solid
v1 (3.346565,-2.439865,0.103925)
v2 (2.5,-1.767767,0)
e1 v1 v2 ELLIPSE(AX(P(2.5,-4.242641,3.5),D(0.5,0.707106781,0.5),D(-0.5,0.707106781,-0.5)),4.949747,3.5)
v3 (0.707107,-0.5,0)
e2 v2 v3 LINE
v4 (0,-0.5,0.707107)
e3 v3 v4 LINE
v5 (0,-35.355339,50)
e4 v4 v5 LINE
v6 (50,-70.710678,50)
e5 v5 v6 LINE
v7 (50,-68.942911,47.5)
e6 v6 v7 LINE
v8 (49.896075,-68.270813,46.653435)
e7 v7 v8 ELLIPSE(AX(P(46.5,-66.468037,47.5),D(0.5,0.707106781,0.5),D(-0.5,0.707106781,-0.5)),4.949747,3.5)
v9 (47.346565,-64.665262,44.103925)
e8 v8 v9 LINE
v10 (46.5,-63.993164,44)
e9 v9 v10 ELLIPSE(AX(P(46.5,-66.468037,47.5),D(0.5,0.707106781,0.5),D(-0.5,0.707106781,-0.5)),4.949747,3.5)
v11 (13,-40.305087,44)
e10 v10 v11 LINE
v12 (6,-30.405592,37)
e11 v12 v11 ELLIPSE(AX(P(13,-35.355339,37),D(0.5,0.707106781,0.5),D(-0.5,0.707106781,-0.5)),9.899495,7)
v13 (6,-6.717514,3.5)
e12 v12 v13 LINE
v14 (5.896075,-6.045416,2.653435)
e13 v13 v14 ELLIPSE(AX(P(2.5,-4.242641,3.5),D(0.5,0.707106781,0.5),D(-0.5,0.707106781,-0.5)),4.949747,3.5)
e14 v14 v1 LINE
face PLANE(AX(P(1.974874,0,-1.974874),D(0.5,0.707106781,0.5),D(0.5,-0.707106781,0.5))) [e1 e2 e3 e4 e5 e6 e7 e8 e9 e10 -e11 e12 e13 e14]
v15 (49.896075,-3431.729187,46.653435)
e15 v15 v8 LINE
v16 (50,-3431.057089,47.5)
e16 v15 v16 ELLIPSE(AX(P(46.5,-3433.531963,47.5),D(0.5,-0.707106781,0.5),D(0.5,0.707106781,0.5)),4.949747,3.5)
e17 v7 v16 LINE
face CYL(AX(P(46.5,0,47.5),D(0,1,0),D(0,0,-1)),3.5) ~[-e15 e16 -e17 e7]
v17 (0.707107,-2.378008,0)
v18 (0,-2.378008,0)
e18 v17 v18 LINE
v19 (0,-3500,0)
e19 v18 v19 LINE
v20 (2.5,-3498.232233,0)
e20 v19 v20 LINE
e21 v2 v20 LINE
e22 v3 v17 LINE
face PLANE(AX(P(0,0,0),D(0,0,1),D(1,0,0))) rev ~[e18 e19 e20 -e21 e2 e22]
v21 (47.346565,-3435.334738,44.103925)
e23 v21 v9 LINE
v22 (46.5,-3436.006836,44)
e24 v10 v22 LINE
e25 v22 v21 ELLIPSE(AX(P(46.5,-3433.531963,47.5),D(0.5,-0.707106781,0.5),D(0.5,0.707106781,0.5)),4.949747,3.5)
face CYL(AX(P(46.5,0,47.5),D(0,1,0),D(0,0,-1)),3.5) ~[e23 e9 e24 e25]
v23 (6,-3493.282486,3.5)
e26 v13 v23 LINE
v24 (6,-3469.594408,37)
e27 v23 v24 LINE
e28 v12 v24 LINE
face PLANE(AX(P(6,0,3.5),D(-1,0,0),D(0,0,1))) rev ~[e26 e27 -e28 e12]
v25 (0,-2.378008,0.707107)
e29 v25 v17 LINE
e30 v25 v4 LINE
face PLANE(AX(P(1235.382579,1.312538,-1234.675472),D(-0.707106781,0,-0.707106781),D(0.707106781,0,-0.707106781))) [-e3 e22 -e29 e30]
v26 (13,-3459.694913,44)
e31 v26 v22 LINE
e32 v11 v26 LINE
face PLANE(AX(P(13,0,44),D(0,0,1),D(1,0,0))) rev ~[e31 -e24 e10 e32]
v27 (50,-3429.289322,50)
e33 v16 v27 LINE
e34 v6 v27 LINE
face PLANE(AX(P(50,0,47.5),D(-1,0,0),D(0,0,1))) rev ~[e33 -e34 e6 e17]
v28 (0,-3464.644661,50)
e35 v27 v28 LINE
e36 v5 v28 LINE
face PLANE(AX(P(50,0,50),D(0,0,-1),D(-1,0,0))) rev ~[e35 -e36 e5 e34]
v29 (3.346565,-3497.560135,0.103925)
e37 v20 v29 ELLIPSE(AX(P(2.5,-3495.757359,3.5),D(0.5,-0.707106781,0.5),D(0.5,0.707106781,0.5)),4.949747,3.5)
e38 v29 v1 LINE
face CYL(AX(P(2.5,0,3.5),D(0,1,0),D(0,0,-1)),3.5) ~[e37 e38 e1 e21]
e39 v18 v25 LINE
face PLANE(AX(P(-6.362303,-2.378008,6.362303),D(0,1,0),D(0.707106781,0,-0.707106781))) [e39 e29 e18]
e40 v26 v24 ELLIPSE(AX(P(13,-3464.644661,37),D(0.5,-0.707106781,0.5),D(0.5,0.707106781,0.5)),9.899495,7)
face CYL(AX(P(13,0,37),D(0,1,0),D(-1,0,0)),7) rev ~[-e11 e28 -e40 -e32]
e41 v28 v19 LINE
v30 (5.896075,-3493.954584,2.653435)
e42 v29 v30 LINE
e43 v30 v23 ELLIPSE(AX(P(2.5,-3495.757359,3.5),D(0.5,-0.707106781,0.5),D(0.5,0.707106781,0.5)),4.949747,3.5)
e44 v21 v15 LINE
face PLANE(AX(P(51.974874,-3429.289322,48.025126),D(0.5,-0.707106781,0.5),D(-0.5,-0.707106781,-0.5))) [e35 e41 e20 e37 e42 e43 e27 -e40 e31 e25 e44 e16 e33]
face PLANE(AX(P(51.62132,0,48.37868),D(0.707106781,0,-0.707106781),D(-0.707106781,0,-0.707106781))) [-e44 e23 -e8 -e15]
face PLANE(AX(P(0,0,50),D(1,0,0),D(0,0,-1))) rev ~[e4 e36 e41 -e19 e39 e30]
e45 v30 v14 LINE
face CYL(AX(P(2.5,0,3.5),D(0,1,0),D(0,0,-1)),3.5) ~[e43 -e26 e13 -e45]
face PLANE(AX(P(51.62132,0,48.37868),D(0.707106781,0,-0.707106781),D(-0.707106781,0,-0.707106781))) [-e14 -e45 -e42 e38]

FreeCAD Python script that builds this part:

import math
import FreeCAD as App
import Part
import Sketcher
Q = App.Units.Quantity

doc = App.newDocument("Part")
body = doc.addObject("PartDesign::Body", "Body")

# Sketch on XZ plane
sketch1 = body.newObject("Sketcher::SketchObject", "Sketch")
sketch1.AttachmentSupport = (doc.getObject("XZ_Plane"), [""])
sketch1.MapMode = "FlatFace"
sketch1.addGeometry([
    Part.LineSegment(App.Vector(0, 50, 0), App.Vector(0, 0, 0)),  # 0
    Part.LineSegment(App.Vector(0, 0, 0), App.Vector(2.5, 0, 0)),  # 1
    Part.ArcOfCircle(Part.Circle(App.Vector(2.5, 3.5, 0), App.Vector(0, 0, 1), 3.5), math.radians(-90), math.radians(0)),  # 2
    Part.LineSegment(App.Vector(6, 3.5, 0), App.Vector(6, 37, 0)),  # 3
    Part.ArcOfCircle(Part.Circle(App.Vector(13, 37, 0), App.Vector(0, 0, 1), 7), math.radians(90), math.radians(180)),  # 4
    Part.LineSegment(App.Vector(13, 44, 0), App.Vector(46.5, 44, 0)),  # 5
    Part.ArcOfCircle(Part.Circle(App.Vector(46.5, 47.5, 0), App.Vector(0, 0, 1), 3.5), math.radians(-90), math.radians(0)),  # 6
    Part.LineSegment(App.Vector(50, 47.5, 0), App.Vector(50, 50, 0)),  # 7
    Part.LineSegment(App.Vector(50, 50, 0), App.Vector(0, 50, 0)),  # 8
], False)
sketch1.addConstraint([
    Sketcher.Constraint("Coincident", 0, 2, 1, 1),
    Sketcher.Constraint("Tangent", 1, 2, 2, 1),
    Sketcher.Constraint("Tangent", 2, 2, 3, 1),
    Sketcher.Constraint("Tangent", 3, 2, 4, 2),
    Sketcher.Constraint("Tangent", 4, 1, 5, 1),
    Sketcher.Constraint("Tangent", 5, 2, 6, 1),
    Sketcher.Constraint("Tangent", 6, 2, 7, 1),
    Sketcher.Constraint("Coincident", 7, 2, 8, 1),
    Sketcher.Constraint("Coincident", 8, 2, 0, 1),
    Sketcher.Constraint("Vertical", 0),
    Sketcher.Constraint("Horizontal", 1),
    Sketcher.Constraint("Vertical", 3),
    Sketcher.Constraint("Horizontal", 5),
    Sketcher.Constraint("Vertical", 7),
    Sketcher.Constraint("Horizontal", 8),
    Sketcher.Constraint("Coincident", 0, 2, -1, 1),
    Sketcher.Constraint("Equal", 2, 6),
    Sketcher.Constraint("Equal", 8, 0),
    Sketcher.Constraint("Equal", 5, 3),
    Sketcher.Constraint("Radius", 4, Q("7 mm")),
    Sketcher.Constraint("Radius", 2, Q("3.5 mm")),
    Sketcher.Constraint("DistanceX", 8, 2, 8, 1, Q("50 mm")),
    Sketcher.Constraint("DistanceX", 1, 1, 1, 2, Q("2.5 mm")),
])
pad1 = body.newObject("PartDesign::Pad", "Pad")
pad1.Profile = sketch1
pad1.Length = 3500

# Sketch on an angled plane
sketch2 = body.newObject("Sketcher::SketchObject", "Sketch001")
sketch2.Placement = App.Placement(App.Vector(1.974874, 0, -1.974874), App.Rotation(App.Vector(0, -1, 0), App.Vector(0.707106781, 0, 0.707106781), App.Vector(-0.707106781, 0, 0.707106781), "ZXY"))
sketch2.addGeometry([
    Part.LineSegment(App.Vector(3429, 71, 0), App.Vector(3500, 0, 0)),
    Part.LineSegment(App.Vector(3500, 0, 0), App.Vector(3500, 71, 0)),
    Part.LineSegment(App.Vector(3500, 71, 0), App.Vector(3429, 71, 0)),
], False)
sketch2.addConstraint([
    Sketcher.Constraint("Coincident", 0, 2, 1, 1),
    Sketcher.Constraint("Coincident", 1, 2, 2, 1),
    Sketcher.Constraint("Coincident", 2, 2, 0, 1),
    Sketcher.Constraint("Vertical", 1),
    Sketcher.Constraint("Horizontal", 2),
    Sketcher.Constraint("PointOnObject", 0, 2, -1),
    Sketcher.Constraint("Equal", 2, 1),
    Sketcher.Constraint("Distance", 0, Q("100 mm")),
    Sketcher.Constraint("DistanceX", -1, 1, 0, 2, Q("3500 mm")),
])
pocket1 = body.newObject("PartDesign::Pocket", "Pocket")
pocket1.Profile = sketch2
pocket1.Length = 45
pocket1.Reversed = True

# Sketch on an angled plane
sketch3 = body.newObject("Sketcher::SketchObject", "Sketch002")
sketch3.Placement = App.Placement(App.Vector(1.974874, 0, -1.974874), App.Rotation(App.Vector(0, -1, 0), App.Vector(0.707106781, 0, 0.707106781), App.Vector(-0.707106781, 0, 0.707106781), "ZXY"))
sketch3.addGeometry([
    Part.LineSegment(App.Vector(0, 71, 0), App.Vector(0, 0, 0)),
    Part.LineSegment(App.Vector(0, 0, 0), App.Vector(71, 71, 0)),
    Part.LineSegment(App.Vector(71, 71, 0), App.Vector(0, 71, 0)),
], False)
sketch3.addConstraint([
    Sketcher.Constraint("Coincident", 0, 2, 1, 1),
    Sketcher.Constraint("Coincident", 1, 2, 2, 1),
    Sketcher.Constraint("Coincident", 2, 2, 0, 1),
    Sketcher.Constraint("Vertical", 0),
    Sketcher.Constraint("Horizontal", 2),
    Sketcher.Constraint("Coincident", 0, 2, -1, 1),
    Sketcher.Constraint("Equal", 2, 0),
    Sketcher.Constraint("Distance", 1, Q("100 mm")),
])
pocket2 = body.newObject("PartDesign::Pocket", "Pocket001")
pocket2.Profile = sketch3
pocket2.Length = 45
pocket2.Reversed = True

# Sketch on XZ plane
sketch4 = body.newObject("Sketcher::SketchObject", "Sketch003")
sketch4.AttachmentSupport = (doc.getObject("XZ_Plane"), [""])
sketch4.MapMode = "FlatFace"
sketch4.addGeometry([
    Part.LineSegment(App.Vector(1.62, -1.62, 0), App.Vector(1.97, -1.97, 0)),
    Part.LineSegment(App.Vector(1.97, -1.97, 0), App.Vector(51.97, 48.03, 0)),
    Part.LineSegment(App.Vector(51.97, 48.03, 0), App.Vector(51.62, 48.38, 0)),
    Part.LineSegment(App.Vector(51.62, 48.38, 0), App.Vector(1.62, -1.62, 0)),
], False)
sketch4.addConstraint([
    Sketcher.Constraint("Coincident", 0, 2, 1, 1),
    Sketcher.Constraint("Coincident", 1, 2, 2, 1),
    Sketcher.Constraint("Coincident", 2, 2, 3, 1),
    Sketcher.Constraint("Coincident", 3, 2, 0, 1),
    Sketcher.Constraint("Perpendicular", 0, 1),
    Sketcher.Constraint("Perpendicular", 1, 2),
    Sketcher.Constraint("Perpendicular", 2, 3),
    Sketcher.Constraint("Angle", 0, Q("-45 deg")),
    Sketcher.Constraint("DistanceX", 0, 2, 1, 2, Q("50 mm")),
    Sketcher.Constraint("Distance", 0, Q("0.5 mm")),
    Sketcher.Constraint("DistanceX", -1, 1, 2, 2, Q("51.62132 mm")),
    Sketcher.Constraint("DistanceY", -1, 1, 2, 2, Q("48.37868 mm")),
])
pocket3 = body.newObject("PartDesign::Pocket", "Pocket002")
pocket3.Profile = sketch4
pocket3.Type = "ThroughAll"
pocket3.Reversed = True

# Sketch on an angled plane
sketch5 = body.newObject("Sketcher::SketchObject", "Sketch004")
sketch5.Placement = App.Placement(App.Vector(0, 0, 0), App.Rotation(App.Vector(0.707106781, 0, -0.707106781), App.Vector(0, -0.999999999, 0), App.Vector(-0.707106781, 0, -0.707106781), "ZXY"))
sketch5.addGeometry([
    Part.LineSegment(App.Vector(-9, 2, 0), App.Vector(-9, -5, 0)),
    Part.LineSegment(App.Vector(-9, -5, 0), App.Vector(3502, -5, 0)),
    Part.LineSegment(App.Vector(3502, -5, 0), App.Vector(3502, 2, 0)),
    Part.LineSegment(App.Vector(3502, 2, 0), App.Vector(-9, 2, 0)),
], False)
sketch5.addConstraint([
    Sketcher.Constraint("Coincident", 0, 2, 1, 1),
    Sketcher.Constraint("Coincident", 1, 2, 2, 1),
    Sketcher.Constraint("Coincident", 2, 2, 3, 1),
    Sketcher.Constraint("Coincident", 3, 2, 0, 1),
    Sketcher.Constraint("Vertical", 0),
    Sketcher.Constraint("Horizontal", 1),
    Sketcher.Constraint("Vertical", 2),
    Sketcher.Constraint("Horizontal", 3),
    Sketcher.Constraint("DistanceX", 1, 1, 1, 2, Q("3511.184906 mm")),
    Sketcher.Constraint("DistanceY", 0, 2, 0, 1, Q("7.381093 mm")),
    Sketcher.Constraint("DistanceX", -1, 1, 1, 2, Q("3502.18725 mm")),
    Sketcher.Constraint("DistanceY", -1, 1, 2, 2, Q("2.378008 mm")),
])
pocket4 = body.newObject("PartDesign::Pocket", "Pocket003")
pocket4.Profile = sketch5
pocket4.Length = 0.5

doc.recompute()
